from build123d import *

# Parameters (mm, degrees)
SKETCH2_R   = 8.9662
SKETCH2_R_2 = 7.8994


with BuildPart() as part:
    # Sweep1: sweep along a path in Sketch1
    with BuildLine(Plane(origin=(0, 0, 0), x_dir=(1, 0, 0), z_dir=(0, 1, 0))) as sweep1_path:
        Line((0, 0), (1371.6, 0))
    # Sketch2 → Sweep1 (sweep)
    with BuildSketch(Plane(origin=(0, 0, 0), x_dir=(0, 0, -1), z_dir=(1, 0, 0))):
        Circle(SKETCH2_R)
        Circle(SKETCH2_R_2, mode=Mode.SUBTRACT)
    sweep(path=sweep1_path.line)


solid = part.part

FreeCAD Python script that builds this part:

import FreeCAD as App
import Part
import Sketcher
Q = App.Units.Quantity

doc = App.newDocument("Part")
body = doc.addObject("PartDesign::Body", "Body")

# Sketch on YZ plane
sketch1 = body.newObject("Sketcher::SketchObject", "Sketch")
sketch1.AttachmentSupport = (doc.getObject("YZ_Plane"), [""])
sketch1.MapMode = "FlatFace"
sketch1.addGeometry(Part.Circle(App.Vector(0, 0, 0), App.Vector(0, 0, 1), 8.9662), False)
sketch1.addGeometry(Part.Circle(App.Vector(0, 0, 0), App.Vector(0, 0, 1), 7.8994), False)
sketch1.addConstraint(Sketcher.Constraint("Coincident", 0, 3, -1, 1))
sketch1.addConstraint(Sketcher.Constraint("Coincident", 1, 3, -1, 1))
sketch1.addConstraint(Sketcher.Constraint("Diameter", 0, Q("0.706 in")))
sketch1.addConstraint(Sketcher.Constraint("Diameter", 1, Q("0.622 in")))

# Sketch on XY plane
sketch2 = body.newObject("Sketcher::SketchObject", "Sketch001")
sketch2.AttachmentSupport = (doc.getObject("XY_Plane"), [""])
sketch2.MapMode = "FlatFace"
sketch2.addGeometry(Part.LineSegment(App.Vector(0, 0, 0), App.Vector(1371.6, 0, 0)), False)
sketch2.addConstraint(Sketcher.Constraint("Horizontal", 0))
sketch2.addConstraint(Sketcher.Constraint("Coincident", 0, 1, -1, 1))
sketch2.addConstraint(Sketcher.Constraint("DistanceX", 0, 1, 0, 2, Q("54 in")))
doc.recompute()

additivepipe = body.newObject("PartDesign::AdditivePipe", "AdditivePipe")
additivepipe.Profile = sketch1
additivepipe.Spine = (sketch2, ["Edge1"])

doc.recompute()
